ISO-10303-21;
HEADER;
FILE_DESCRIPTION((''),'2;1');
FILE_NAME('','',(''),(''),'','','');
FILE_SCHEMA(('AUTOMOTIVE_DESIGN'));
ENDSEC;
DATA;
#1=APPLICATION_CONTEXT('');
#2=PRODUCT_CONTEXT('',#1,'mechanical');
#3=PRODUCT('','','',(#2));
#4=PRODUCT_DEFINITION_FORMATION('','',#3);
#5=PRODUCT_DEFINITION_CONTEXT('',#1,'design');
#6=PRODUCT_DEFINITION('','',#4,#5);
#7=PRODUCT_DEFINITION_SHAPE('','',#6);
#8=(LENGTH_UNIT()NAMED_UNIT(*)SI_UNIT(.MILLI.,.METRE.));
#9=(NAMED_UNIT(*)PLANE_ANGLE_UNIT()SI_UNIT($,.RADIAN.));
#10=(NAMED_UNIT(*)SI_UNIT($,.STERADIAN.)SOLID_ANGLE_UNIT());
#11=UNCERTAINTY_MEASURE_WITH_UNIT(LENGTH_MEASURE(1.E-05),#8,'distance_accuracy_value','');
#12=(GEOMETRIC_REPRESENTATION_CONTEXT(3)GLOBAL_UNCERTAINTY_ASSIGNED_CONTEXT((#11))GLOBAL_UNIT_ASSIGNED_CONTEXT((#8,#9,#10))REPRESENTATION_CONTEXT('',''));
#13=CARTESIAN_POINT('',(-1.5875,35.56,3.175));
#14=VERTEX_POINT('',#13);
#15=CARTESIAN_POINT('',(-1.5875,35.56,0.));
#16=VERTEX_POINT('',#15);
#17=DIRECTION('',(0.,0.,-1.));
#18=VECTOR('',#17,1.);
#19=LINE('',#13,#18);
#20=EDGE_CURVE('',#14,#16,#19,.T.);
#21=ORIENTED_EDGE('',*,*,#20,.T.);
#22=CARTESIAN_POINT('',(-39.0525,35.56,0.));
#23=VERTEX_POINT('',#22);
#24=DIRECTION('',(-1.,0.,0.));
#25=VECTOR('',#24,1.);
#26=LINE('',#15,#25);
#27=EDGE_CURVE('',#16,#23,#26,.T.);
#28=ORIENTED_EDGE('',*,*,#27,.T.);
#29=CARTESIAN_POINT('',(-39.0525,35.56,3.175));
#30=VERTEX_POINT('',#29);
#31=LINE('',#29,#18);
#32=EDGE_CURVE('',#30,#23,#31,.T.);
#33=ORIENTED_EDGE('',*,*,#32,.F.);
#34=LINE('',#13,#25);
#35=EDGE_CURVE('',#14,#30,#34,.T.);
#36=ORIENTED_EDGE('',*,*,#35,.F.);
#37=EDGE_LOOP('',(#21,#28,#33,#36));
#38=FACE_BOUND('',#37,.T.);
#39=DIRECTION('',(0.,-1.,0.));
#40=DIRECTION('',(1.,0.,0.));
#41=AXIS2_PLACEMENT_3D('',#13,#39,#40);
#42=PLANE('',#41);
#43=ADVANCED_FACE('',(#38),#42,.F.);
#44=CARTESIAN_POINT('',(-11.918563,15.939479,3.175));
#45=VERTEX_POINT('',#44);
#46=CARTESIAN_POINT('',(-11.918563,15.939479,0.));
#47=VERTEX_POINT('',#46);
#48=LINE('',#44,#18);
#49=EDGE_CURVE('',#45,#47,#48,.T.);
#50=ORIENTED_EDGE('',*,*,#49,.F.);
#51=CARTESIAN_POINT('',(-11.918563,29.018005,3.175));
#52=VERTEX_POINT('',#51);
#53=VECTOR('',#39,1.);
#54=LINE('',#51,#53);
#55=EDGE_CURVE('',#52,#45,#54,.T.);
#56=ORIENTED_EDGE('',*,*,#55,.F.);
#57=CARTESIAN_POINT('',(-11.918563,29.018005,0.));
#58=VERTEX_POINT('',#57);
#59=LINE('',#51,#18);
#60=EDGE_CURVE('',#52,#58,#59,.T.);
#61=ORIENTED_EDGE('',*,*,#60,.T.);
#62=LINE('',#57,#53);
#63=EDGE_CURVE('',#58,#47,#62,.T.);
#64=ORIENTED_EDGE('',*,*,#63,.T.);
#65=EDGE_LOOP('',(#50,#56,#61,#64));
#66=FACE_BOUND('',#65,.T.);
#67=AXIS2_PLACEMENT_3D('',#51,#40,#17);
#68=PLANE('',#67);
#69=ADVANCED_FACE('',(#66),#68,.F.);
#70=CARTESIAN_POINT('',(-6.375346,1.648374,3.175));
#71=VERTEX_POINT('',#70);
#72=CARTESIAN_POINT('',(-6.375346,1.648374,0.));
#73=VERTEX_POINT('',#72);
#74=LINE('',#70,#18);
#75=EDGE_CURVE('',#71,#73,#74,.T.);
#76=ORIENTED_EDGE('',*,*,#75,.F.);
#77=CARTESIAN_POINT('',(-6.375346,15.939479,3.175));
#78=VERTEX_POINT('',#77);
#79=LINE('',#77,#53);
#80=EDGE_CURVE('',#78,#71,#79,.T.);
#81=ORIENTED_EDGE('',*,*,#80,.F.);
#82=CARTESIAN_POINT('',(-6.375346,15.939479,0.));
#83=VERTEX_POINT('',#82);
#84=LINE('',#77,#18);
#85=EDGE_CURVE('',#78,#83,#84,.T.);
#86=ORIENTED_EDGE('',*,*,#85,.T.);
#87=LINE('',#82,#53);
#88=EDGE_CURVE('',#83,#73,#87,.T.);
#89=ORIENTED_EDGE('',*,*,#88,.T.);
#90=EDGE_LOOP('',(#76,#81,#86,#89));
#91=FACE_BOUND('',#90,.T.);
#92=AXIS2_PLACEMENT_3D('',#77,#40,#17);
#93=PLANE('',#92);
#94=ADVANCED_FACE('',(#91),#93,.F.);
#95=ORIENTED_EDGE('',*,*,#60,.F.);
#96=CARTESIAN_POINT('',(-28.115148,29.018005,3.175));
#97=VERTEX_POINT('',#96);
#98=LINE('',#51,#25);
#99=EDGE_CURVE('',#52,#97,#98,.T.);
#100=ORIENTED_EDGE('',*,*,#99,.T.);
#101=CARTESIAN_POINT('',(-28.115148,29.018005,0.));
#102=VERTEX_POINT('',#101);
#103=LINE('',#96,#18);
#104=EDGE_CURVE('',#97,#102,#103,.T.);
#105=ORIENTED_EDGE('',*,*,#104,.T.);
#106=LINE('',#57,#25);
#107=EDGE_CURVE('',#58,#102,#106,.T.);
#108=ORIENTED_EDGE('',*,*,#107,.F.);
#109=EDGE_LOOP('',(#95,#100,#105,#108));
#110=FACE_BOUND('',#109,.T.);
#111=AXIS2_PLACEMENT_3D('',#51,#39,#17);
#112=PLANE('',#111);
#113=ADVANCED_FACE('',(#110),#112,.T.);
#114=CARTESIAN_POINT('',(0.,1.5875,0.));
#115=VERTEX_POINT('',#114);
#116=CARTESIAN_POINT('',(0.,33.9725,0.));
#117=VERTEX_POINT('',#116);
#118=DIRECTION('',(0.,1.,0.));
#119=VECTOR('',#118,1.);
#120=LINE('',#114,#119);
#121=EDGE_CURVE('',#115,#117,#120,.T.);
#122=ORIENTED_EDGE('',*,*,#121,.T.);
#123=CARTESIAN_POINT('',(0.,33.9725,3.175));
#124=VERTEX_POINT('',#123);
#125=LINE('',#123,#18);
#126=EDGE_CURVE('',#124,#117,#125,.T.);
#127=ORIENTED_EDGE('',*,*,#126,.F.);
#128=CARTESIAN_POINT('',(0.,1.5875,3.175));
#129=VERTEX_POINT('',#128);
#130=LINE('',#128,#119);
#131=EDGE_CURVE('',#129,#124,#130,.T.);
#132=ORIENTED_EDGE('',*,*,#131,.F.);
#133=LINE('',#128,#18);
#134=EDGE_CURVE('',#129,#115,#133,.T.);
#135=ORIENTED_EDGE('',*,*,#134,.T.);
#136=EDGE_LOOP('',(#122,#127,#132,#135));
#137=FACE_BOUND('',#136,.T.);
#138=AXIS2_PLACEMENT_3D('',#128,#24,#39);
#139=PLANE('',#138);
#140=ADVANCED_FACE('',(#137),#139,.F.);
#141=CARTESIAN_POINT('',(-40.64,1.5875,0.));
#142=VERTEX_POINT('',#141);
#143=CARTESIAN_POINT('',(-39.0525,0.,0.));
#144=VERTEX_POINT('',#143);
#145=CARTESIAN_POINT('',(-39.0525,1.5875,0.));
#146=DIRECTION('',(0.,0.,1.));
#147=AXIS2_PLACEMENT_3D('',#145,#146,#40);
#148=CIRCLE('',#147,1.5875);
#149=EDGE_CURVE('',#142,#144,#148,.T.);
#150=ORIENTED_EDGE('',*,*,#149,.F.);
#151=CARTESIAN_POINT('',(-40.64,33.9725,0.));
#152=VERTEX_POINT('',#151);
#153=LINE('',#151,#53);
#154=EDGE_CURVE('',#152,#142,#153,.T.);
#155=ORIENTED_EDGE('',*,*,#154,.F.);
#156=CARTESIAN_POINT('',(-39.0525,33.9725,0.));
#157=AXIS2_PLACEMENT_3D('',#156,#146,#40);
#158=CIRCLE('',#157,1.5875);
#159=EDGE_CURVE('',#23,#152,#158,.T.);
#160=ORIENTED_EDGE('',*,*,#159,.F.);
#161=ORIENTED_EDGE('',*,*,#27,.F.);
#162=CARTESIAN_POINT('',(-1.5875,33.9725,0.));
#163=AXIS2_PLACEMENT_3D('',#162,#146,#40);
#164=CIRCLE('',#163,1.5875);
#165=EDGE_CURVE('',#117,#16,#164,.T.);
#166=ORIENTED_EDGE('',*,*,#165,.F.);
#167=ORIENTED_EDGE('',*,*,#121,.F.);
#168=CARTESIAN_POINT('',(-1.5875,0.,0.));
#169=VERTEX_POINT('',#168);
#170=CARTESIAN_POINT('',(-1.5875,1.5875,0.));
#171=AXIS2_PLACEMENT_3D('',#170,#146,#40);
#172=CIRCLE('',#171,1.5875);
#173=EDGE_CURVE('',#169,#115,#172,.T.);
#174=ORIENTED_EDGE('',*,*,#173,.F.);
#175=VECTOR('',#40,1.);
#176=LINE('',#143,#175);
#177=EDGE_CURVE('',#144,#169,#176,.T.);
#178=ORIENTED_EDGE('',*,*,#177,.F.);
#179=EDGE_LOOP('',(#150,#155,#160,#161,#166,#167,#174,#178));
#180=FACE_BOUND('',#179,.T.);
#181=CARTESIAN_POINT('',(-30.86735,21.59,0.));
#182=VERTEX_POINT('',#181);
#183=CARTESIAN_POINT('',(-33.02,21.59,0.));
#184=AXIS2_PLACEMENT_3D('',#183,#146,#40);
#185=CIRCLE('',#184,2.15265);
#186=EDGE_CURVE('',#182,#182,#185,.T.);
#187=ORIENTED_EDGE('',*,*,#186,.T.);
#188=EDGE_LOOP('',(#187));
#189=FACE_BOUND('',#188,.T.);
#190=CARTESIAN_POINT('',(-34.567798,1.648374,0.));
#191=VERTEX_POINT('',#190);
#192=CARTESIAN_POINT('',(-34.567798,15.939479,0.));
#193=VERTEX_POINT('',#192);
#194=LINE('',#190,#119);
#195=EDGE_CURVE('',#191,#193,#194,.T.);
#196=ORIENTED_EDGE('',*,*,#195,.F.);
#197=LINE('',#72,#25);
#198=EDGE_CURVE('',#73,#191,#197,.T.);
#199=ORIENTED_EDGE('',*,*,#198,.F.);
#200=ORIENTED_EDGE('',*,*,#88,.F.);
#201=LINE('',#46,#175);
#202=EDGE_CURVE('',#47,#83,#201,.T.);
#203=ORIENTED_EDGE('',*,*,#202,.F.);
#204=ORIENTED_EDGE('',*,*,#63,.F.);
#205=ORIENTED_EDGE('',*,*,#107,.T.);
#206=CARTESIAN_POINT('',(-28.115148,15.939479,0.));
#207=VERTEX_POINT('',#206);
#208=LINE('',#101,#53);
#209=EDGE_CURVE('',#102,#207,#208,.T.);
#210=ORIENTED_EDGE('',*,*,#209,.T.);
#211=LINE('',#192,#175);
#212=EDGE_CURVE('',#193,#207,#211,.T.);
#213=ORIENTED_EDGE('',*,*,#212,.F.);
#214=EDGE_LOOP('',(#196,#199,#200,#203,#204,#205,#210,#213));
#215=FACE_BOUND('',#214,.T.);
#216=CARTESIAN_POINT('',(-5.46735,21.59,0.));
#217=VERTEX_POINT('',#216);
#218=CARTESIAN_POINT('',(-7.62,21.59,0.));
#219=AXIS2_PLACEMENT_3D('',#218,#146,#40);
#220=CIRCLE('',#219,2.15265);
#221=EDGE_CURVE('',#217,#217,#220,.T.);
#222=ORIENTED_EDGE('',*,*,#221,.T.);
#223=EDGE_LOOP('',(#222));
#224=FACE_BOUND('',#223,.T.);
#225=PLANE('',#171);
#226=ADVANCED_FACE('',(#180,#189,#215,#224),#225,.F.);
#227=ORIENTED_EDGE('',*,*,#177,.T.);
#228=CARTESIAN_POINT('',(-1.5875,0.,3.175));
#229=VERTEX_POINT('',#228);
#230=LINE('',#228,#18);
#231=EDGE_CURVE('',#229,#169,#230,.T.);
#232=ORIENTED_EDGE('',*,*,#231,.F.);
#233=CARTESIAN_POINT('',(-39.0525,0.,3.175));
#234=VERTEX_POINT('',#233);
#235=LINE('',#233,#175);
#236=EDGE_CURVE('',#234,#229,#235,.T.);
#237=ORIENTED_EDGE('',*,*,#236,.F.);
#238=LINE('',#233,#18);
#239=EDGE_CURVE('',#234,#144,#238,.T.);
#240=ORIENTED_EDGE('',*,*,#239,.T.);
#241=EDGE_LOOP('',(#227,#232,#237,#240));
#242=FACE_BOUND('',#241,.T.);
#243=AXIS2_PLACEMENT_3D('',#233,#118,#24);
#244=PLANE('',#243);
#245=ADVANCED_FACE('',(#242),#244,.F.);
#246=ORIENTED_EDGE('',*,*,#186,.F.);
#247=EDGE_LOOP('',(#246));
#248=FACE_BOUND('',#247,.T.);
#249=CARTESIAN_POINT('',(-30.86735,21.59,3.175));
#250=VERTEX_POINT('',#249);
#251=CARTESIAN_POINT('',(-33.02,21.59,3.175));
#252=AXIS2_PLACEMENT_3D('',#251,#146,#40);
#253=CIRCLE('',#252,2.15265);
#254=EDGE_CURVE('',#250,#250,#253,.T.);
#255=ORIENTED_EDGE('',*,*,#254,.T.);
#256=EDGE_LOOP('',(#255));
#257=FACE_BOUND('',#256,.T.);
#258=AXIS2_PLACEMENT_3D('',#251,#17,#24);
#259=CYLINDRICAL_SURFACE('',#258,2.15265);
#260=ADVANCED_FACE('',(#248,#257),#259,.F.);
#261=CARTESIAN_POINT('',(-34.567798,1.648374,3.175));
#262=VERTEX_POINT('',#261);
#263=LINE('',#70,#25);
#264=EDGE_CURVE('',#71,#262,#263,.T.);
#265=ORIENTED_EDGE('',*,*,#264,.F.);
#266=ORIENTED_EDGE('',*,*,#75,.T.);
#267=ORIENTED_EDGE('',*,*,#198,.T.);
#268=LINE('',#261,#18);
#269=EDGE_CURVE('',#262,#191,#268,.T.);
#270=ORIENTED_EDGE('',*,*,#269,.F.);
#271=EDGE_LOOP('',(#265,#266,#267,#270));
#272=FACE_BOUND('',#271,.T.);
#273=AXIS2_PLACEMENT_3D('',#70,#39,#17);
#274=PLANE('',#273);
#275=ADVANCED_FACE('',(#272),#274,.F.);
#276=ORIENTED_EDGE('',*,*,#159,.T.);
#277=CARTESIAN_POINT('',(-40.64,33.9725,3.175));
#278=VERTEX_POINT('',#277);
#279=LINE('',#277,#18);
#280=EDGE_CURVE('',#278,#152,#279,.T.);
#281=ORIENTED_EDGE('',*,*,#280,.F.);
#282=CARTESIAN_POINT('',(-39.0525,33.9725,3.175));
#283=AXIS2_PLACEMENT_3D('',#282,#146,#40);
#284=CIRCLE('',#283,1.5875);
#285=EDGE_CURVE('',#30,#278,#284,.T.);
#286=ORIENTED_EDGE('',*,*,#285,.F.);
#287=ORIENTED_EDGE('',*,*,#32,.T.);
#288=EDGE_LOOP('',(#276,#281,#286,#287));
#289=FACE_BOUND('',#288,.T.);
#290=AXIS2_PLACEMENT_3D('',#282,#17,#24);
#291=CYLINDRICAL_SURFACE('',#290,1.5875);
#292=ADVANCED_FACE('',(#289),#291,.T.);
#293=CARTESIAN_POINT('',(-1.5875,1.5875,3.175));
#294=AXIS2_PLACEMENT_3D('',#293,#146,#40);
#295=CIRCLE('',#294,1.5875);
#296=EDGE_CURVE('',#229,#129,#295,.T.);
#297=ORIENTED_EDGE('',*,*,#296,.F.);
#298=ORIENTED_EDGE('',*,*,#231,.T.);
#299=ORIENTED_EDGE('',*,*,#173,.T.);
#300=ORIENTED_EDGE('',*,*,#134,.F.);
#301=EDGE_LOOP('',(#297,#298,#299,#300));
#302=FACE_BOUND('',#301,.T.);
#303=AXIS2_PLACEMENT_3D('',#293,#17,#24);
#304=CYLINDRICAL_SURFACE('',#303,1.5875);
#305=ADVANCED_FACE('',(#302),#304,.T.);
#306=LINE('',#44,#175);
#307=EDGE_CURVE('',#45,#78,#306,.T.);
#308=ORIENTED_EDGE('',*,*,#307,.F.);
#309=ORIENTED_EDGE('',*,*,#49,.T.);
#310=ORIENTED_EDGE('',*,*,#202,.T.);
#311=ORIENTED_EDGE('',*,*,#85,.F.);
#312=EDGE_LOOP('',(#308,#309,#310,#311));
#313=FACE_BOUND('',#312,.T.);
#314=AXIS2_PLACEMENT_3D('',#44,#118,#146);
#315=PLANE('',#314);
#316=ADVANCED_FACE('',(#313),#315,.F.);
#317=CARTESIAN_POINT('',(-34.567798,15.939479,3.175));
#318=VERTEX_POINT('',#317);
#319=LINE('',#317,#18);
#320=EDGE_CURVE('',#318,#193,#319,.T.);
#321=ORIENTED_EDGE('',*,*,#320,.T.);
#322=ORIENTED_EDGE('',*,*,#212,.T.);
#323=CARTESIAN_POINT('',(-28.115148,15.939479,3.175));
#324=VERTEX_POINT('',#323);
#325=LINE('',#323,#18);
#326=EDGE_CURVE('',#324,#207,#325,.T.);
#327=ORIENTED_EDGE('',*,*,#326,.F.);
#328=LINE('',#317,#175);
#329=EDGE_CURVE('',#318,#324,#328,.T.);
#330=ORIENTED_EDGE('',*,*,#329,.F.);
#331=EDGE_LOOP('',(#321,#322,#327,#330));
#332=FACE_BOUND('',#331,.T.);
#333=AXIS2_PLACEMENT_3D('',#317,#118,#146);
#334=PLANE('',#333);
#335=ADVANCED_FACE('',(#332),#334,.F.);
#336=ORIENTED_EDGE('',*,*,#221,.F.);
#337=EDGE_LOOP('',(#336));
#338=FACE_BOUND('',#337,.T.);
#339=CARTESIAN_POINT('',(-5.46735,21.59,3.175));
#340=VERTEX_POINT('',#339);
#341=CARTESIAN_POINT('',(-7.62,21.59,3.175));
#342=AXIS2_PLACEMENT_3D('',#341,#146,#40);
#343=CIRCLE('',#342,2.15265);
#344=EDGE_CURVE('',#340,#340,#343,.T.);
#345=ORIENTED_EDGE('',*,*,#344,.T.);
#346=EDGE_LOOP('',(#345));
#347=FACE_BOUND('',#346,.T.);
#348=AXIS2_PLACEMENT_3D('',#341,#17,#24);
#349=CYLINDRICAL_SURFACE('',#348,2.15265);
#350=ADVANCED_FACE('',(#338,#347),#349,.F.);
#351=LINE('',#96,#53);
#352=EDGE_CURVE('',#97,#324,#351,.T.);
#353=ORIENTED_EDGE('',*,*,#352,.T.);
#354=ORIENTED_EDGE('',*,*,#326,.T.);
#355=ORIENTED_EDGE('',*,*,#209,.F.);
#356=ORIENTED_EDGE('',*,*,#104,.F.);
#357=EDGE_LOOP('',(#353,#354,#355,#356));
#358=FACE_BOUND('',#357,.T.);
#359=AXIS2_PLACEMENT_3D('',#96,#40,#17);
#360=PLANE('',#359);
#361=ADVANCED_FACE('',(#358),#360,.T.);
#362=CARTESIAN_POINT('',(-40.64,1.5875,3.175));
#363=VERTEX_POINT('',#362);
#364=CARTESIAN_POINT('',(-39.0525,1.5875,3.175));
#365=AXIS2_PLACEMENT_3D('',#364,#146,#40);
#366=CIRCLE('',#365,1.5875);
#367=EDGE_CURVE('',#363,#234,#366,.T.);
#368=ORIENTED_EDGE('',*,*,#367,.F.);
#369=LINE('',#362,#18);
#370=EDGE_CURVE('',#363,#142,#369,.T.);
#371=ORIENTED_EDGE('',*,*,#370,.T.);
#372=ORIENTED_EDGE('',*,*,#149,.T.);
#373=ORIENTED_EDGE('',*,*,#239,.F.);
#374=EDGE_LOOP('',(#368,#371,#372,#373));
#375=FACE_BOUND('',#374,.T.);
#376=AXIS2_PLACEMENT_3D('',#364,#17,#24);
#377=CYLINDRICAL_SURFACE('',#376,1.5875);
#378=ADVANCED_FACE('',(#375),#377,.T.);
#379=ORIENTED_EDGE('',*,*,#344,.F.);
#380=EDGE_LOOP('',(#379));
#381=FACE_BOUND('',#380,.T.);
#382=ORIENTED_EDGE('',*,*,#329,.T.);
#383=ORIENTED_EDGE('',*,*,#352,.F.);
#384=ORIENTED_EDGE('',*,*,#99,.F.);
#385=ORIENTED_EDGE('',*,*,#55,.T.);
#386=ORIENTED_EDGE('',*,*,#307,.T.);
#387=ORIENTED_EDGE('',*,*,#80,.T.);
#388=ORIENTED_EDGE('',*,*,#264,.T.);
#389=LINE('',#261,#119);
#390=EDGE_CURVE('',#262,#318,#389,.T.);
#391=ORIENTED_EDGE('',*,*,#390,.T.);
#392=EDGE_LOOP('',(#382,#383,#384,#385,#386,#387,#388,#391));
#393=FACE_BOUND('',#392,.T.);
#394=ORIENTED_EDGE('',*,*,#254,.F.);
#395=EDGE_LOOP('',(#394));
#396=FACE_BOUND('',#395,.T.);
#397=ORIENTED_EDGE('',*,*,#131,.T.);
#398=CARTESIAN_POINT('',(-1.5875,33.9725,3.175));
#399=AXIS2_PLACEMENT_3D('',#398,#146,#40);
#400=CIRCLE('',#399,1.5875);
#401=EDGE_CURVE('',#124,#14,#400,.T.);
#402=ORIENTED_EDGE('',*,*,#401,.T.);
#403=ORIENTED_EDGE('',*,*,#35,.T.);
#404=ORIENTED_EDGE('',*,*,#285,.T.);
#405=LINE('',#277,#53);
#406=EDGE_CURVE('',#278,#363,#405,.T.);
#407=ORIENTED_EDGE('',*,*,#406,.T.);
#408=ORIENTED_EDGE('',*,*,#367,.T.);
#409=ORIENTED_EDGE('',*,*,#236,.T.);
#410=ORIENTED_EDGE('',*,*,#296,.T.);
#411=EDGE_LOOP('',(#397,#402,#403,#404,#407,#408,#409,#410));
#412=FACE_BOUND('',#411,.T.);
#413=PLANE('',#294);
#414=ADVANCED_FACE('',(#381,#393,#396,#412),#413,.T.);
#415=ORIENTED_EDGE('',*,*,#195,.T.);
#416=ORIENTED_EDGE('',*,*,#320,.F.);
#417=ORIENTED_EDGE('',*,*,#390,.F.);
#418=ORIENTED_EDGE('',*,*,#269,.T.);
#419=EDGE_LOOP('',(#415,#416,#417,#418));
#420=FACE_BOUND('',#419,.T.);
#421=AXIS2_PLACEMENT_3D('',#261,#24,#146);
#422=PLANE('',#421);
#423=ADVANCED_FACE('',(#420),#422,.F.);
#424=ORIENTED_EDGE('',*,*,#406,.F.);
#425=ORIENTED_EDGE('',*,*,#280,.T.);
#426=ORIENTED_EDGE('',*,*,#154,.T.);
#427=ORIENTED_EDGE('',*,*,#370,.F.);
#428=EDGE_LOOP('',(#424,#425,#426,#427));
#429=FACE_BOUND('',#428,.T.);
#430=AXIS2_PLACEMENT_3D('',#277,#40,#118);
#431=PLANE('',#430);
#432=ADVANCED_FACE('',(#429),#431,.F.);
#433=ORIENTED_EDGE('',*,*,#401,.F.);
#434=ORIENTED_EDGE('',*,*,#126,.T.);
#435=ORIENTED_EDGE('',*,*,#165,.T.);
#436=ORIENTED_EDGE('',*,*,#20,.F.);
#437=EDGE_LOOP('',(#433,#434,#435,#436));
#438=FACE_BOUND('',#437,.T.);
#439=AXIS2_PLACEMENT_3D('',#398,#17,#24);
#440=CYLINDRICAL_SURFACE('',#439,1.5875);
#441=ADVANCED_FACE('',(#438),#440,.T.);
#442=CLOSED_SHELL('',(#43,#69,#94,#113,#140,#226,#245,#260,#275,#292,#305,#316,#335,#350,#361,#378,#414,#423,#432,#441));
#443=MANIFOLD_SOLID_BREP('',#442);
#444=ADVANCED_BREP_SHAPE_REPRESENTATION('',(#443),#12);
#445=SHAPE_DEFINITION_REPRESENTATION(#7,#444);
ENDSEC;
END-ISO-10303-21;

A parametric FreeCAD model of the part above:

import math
import FreeCAD as App
import Part
import Sketcher

V = App.Vector
Q = App.Units.Quantity


def add_polygon(sketch, points):
    """Adds a closed chain of lines whose ends are joined by coincident constraints."""
    first, n = sketch.GeometryCount, len(points)
    for a, b in zip(points, points[1:] + points[:1]):
        sketch.addGeometry(Part.LineSegment(App.Vector(*a, 0), App.Vector(*b, 0)), False)
    for i in range(n):
        sketch.addConstraint(Sketcher.Constraint("Coincident", first + i, 2, first + (i + 1) % n, 1))

doc = App.newDocument("Part")
body = doc.addObject("PartDesign::Body", "Body")

# Sketch on XY plane
sketch1 = body.newObject("Sketcher::SketchObject", "Sketch")
sketch1.AttachmentSupport = (doc.getObject("XY_Plane"), [""])
sketch1.MapMode = "FlatFace"
sketch1.addGeometry(Part.LineSegment(V(0, 1.6, 0), V(0, 34, 0)), False)
sketch1.addGeometry(Part.ArcOfCircle(Part.Circle(V(-1.6, 34, 0), V(0, 0, 1), 1.6), math.radians(0), math.radians(90)), False)
sketch1.addGeometry(Part.LineSegment(V(-1.6, 35.6, 0), V(-39.1, 35.6, 0)), False)
sketch1.addGeometry(Part.ArcOfCircle(Part.Circle(V(-39.1, 34, 0), V(0, 0, 1), 1.6), math.radians(90), math.radians(180)), False)
sketch1.addGeometry(Part.LineSegment(V(-40.6, 34, 0), V(-40.6, 1.6, 0)), False)
sketch1.addGeometry(Part.ArcOfCircle(Part.Circle(V(-39.1, 1.6, 0), V(0, 0, 1), 1.6), math.radians(180), math.radians(270)), False)
sketch1.addGeometry(Part.LineSegment(V(-39.1, 0, 0), V(-1.6, 0, 0)), False)
sketch1.addGeometry(Part.ArcOfCircle(Part.Circle(V(-1.6, 1.6, 0), V(0, 0, 1), 1.6), math.radians(-90), math.radians(0)), False)
sketch1.addGeometry(Part.Circle(V(-33, 21.6, 0), V(0, 0, 1), 2.2), False)
sketch1.addGeometry(Part.Circle(V(-7.6, 21.6, 0), V(0, 0, 1), 2.2), False)
sketch1.addConstraint(Sketcher.Constraint("Tangent", 0, 2, 1, 1))
sketch1.addConstraint(Sketcher.Constraint("Tangent", 1, 2, 2, 1))
sketch1.addConstraint(Sketcher.Constraint("Tangent", 2, 2, 3, 1))
sketch1.addConstraint(Sketcher.Constraint("Tangent", 3, 2, 4, 1))
sketch1.addConstraint(Sketcher.Constraint("Tangent", 4, 2, 5, 1))
sketch1.addConstraint(Sketcher.Constraint("Tangent", 5, 2, 6, 1))
sketch1.addConstraint(Sketcher.Constraint("Tangent", 6, 2, 7, 1))
sketch1.addConstraint(Sketcher.Constraint("Tangent", 7, 2, 0, 1))
sketch1.addConstraint(Sketcher.Constraint("Vertical", 0))
sketch1.addConstraint(Sketcher.Constraint("Horizontal", 2))
sketch1.addConstraint(Sketcher.Constraint("Vertical", 4))
sketch1.addConstraint(Sketcher.Constraint("Horizontal", 6))
sketch1.addConstraint(Sketcher.Constraint("Equal", 1, 3))
sketch1.addConstraint(Sketcher.Constraint("Equal", 3, 5))
sketch1.addConstraint(Sketcher.Constraint("Equal", 5, 7))
sketch1.addConstraint(Sketcher.Constraint("Equal", 8, 9))
sketch1.addConstraint(Sketcher.Constraint("PointOnObject", 0, 2, -2))
sketch1.addConstraint(Sketcher.Constraint("PointOnObject", 5, 2, -1))
sketch1.addConstraint(Sketcher.Constraint("Horizontal", 8, 3, 9, 3))
sketch1.addConstraint(Sketcher.Constraint("Radius", 1, Q("0.0625 in")))
sketch1.addConstraint(Sketcher.Constraint("DistanceX", 8, 3, 9, 3, Q("1 in")))
sketch1.addConstraint(Sketcher.Constraint("Diameter", 8, Q("0.1695 in")))
sketch1.addConstraint(Sketcher.Constraint("DistanceX", 8, 3, -1, 1, Q("1.3 in")))
sketch1.addConstraint(Sketcher.Constraint("DistanceY", -1, 1, 1, 2, Q("1.4 in")))
sketch1.addConstraint(Sketcher.Constraint("DistanceX", 3, 2, -1, 1, Q("1.6 in")))
sketch1.addConstraint(Sketcher.Constraint("DistanceY", -1, 1, 8, 3, Q("0.85 in")))
pad1 = body.newObject("PartDesign::Pad", "Pad")
pad1.Profile = sketch1
pad1.Length = Q("0.125 in")

# Sketch on XY plane
sketch2 = body.newObject("Sketcher::SketchObject", "Sketch001")
sketch2.AttachmentSupport = (doc.getObject("XY_Plane"), [""])
sketch2.MapMode = "FlatFace"
add_polygon(sketch2, [(-12, 16), (-6, 16), (-6, 2), (-35, 2), (-35, 16), (-28, 16), (-28, 29), (-12, 29)])  # lines 0-7
sketch2.addConstraint(Sketcher.Constraint("Horizontal", 0))
sketch2.addConstraint(Sketcher.Constraint("Vertical", 1))
sketch2.addConstraint(Sketcher.Constraint("Horizontal", 2))
sketch2.addConstraint(Sketcher.Constraint("Vertical", 3))
sketch2.addConstraint(Sketcher.Constraint("Horizontal", 4))
sketch2.addConstraint(Sketcher.Constraint("Vertical", 5))
sketch2.addConstraint(Sketcher.Constraint("Horizontal", 6))
sketch2.addConstraint(Sketcher.Constraint("Vertical", 7))
sketch2.addConstraint(Sketcher.Constraint("Horizontal", 0, 2, 3, 2))
sketch2.addConstraint(Sketcher.Constraint("DistanceX", 2, 2, 2, 1, 28.192452))
sketch2.addConstraint(Sketcher.Constraint("DistanceX", 4, 1, 4, 2, 6.45265))
sketch2.addConstraint(Sketcher.Constraint("DistanceX", 2, 2, -1, 1, 34.567798))
sketch2.addConstraint(Sketcher.Constraint("DistanceX", 0, 1, 0, 2, 5.543216))
sketch2.addConstraint(Sketcher.Constraint("DistanceY", 1, 2, 1, 1, 14.291105))
sketch2.addConstraint(Sketcher.Constraint("DistanceY", 5, 1, 5, 2, 13.078526))
sketch2.addConstraint(Sketcher.Constraint("DistanceY", -1, 1, 0, 2, 15.939479))
pocket1 = body.newObject("PartDesign::Pocket", "Pocket")
pocket1.Profile = sketch2
pocket1.Type = "ThroughAll"
pocket1.Reversed = True

doc.recompute()
